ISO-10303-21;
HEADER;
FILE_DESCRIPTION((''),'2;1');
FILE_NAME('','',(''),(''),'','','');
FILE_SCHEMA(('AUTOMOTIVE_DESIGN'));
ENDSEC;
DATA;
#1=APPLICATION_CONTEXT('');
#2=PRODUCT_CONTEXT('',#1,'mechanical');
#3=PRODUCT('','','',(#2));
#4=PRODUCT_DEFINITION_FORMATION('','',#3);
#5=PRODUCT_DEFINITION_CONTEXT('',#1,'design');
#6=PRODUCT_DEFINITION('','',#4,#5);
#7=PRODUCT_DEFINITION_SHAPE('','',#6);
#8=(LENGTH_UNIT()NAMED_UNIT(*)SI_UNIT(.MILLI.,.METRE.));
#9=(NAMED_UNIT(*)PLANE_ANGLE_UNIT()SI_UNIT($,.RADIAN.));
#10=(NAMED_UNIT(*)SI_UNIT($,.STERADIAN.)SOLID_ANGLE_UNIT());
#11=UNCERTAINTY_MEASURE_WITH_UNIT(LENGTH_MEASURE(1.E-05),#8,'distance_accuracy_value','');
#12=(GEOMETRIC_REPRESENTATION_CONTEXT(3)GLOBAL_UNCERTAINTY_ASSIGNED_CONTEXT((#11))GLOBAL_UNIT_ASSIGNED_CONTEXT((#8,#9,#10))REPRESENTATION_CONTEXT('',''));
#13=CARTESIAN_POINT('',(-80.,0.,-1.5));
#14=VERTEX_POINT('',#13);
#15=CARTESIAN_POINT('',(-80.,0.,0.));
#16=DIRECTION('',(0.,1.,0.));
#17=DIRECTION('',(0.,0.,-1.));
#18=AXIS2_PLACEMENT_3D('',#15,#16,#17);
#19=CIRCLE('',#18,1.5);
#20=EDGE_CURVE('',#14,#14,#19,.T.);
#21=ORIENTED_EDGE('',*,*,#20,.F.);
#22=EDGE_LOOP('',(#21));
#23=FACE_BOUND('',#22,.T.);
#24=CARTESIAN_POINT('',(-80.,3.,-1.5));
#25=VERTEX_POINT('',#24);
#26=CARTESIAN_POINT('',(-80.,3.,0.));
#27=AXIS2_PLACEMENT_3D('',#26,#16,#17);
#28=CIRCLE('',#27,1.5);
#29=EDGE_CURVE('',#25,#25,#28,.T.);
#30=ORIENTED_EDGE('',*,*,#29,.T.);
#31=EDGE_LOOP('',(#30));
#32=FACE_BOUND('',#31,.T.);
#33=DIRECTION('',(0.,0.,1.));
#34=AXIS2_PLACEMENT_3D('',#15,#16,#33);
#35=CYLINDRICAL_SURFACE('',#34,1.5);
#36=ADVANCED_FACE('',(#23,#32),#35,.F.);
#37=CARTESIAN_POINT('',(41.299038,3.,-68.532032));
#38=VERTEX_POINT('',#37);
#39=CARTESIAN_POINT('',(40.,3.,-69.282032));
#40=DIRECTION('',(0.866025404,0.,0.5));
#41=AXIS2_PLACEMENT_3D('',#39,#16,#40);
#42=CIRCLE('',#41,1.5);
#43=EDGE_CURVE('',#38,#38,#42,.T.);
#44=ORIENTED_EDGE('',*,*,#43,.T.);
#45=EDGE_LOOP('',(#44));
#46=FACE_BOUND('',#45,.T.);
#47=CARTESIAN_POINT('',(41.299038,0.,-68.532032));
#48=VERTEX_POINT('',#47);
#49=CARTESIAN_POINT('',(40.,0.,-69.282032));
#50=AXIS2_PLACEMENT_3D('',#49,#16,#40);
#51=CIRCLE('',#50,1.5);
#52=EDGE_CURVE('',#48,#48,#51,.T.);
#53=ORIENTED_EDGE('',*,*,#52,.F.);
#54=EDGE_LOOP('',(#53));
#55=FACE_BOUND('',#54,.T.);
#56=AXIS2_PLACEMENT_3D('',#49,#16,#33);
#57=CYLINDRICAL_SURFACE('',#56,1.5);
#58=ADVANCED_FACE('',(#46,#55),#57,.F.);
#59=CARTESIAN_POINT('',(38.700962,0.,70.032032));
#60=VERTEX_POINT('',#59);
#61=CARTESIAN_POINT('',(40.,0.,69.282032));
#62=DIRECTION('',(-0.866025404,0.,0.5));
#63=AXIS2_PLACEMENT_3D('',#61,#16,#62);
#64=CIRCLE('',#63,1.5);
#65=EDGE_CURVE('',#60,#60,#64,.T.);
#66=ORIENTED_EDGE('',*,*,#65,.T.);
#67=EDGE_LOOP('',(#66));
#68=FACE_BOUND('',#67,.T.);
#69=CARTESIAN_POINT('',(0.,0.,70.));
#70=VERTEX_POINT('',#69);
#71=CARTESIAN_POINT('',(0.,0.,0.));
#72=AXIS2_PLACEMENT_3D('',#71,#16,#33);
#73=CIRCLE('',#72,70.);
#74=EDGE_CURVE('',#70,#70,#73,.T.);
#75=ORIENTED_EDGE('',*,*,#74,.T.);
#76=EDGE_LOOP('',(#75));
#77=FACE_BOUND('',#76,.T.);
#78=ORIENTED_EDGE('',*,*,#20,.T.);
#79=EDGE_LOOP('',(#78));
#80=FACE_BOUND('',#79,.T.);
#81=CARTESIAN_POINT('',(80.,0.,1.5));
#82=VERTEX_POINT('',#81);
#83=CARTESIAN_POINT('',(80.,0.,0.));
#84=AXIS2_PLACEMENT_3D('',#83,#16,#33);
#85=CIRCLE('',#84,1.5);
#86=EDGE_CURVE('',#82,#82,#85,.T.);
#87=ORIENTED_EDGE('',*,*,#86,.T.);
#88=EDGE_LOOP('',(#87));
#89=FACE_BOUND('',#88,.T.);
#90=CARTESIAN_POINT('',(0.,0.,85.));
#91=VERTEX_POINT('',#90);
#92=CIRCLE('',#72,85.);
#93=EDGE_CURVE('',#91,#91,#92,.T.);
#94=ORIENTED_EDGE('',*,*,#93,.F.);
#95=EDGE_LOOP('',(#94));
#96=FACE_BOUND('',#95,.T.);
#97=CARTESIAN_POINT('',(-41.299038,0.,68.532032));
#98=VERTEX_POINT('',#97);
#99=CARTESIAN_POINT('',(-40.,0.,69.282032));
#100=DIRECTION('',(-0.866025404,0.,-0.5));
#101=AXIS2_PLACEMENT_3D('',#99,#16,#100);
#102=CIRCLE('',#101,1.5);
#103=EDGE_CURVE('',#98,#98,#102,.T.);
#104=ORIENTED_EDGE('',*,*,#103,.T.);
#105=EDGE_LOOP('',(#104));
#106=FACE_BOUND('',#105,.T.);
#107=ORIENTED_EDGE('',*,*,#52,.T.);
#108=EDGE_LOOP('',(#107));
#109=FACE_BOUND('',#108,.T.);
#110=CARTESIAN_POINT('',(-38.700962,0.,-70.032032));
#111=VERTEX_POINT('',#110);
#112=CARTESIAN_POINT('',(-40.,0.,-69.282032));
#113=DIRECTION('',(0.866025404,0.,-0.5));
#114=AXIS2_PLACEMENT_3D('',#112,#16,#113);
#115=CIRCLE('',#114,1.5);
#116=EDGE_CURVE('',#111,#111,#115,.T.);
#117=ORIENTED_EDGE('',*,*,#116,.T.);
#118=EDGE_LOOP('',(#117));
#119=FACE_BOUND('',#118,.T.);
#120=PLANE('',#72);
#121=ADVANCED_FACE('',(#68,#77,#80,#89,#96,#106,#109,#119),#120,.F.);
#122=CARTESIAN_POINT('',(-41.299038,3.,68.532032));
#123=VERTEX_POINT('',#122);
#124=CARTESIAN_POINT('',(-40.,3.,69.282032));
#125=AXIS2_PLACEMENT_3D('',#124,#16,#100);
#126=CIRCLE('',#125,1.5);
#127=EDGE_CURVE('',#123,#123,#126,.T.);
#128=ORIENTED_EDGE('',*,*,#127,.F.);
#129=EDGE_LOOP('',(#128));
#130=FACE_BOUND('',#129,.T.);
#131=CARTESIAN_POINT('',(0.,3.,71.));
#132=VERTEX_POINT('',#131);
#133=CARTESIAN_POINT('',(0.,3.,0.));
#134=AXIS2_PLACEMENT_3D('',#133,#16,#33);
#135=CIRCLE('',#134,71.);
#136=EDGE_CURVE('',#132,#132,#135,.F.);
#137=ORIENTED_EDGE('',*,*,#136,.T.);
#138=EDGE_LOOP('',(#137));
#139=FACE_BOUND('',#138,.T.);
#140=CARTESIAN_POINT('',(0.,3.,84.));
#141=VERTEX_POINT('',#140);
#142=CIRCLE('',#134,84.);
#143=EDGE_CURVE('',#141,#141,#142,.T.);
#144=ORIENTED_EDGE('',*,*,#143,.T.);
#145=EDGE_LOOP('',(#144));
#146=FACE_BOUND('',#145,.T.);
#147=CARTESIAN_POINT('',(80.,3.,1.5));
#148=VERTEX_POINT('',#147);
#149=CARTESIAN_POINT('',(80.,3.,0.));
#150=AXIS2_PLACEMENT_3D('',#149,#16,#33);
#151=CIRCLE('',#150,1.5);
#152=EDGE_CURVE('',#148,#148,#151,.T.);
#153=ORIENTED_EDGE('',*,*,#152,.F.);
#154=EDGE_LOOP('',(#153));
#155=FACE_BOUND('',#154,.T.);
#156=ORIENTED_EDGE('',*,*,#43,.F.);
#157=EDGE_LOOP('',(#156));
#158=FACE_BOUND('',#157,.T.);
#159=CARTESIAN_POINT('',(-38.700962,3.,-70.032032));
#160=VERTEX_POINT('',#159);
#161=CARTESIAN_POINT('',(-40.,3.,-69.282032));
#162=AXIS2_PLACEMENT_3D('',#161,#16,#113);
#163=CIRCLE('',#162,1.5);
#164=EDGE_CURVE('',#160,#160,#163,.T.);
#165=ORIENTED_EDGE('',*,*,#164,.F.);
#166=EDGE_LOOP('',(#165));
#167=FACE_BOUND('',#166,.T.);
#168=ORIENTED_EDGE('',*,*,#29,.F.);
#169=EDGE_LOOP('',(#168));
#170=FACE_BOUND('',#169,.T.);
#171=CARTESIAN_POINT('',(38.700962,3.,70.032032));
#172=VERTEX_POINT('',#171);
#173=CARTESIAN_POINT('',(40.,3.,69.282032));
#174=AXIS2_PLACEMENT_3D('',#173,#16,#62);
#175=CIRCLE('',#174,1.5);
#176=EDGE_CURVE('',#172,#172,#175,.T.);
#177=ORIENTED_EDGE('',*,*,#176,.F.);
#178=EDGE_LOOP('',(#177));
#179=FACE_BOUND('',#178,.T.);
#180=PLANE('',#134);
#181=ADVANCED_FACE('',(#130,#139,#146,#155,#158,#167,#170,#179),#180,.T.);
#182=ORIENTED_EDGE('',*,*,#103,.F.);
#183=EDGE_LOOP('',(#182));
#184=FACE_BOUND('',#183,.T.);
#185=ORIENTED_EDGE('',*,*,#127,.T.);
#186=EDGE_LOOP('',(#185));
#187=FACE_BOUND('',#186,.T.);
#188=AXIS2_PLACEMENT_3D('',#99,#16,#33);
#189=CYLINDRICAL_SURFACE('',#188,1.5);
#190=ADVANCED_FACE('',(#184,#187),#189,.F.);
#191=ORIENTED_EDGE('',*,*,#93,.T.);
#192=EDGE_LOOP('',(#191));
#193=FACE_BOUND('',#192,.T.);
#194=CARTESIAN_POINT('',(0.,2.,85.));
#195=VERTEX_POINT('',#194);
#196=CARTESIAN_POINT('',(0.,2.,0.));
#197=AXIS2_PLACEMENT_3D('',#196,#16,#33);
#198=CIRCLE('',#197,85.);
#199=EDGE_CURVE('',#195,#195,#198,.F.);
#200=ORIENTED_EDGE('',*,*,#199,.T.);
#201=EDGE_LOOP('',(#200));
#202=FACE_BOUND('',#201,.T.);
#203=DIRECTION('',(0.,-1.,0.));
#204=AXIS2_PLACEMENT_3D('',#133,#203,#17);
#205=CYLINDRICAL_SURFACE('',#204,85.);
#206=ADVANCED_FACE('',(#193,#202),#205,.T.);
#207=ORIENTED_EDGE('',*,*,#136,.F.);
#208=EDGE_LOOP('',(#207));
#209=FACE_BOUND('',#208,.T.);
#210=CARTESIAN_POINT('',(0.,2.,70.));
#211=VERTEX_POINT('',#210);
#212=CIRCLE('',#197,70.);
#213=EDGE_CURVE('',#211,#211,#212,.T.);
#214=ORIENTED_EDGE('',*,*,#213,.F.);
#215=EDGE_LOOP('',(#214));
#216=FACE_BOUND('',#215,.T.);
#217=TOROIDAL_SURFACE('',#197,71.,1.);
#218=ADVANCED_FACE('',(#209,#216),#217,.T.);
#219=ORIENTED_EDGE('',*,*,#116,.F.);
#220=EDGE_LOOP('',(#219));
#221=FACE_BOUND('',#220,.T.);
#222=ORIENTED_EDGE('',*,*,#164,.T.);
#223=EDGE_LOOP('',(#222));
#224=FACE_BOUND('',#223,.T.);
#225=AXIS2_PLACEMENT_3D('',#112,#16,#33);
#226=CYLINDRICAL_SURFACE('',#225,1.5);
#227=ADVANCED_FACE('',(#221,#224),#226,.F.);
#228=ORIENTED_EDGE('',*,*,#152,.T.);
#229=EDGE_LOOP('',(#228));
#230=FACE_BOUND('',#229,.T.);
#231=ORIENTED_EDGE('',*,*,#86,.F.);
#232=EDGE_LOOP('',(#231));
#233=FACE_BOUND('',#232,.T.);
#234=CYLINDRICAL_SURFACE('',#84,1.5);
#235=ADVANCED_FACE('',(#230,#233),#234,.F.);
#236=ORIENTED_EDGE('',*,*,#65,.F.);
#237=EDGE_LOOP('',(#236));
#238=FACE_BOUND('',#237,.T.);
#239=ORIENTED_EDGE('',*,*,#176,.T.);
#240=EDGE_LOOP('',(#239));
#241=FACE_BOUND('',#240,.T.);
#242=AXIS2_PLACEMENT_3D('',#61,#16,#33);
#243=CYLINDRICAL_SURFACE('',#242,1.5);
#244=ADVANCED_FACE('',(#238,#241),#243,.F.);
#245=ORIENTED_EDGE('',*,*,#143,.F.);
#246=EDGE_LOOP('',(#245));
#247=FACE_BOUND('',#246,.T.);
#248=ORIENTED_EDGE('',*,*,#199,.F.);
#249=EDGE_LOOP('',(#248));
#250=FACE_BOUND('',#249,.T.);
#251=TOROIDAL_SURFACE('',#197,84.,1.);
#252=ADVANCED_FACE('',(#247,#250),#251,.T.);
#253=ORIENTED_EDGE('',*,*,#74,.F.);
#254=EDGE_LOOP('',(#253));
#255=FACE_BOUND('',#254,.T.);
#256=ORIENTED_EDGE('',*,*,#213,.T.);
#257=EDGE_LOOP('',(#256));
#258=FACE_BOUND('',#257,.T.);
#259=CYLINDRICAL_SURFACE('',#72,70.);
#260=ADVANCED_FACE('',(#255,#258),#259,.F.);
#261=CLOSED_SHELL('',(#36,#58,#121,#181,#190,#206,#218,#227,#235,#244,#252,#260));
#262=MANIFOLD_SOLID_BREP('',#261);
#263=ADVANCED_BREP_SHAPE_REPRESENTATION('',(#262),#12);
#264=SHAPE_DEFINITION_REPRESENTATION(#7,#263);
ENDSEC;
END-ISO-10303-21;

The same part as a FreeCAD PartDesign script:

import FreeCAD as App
import Part
import Sketcher


def edges_at(feature, points):
    """Names of the edges that pass closest to the given points."""
    edges = feature.Shape.Edges
    near = lambda p: min(range(len(edges)), key=lambda i: edges[i].distToShape(Part.Vertex(*p))[0])
    return sorted({f"Edge{near(p) + 1}" for p in points})

doc = App.newDocument("Part")
params = doc.addObject("Spreadsheet::Sheet", "Params")
for row, (alias, value) in enumerate([
    ("sketch1_diameter", "170 mm"),
    ("pad1_length", "3 mm"),
    ("sketch2_diameter", "140 mm"),
    ("pocket1_length", "3 mm"),
    ("sketch3_diameter", "3 mm"),
    ("pocket2_length", "3 mm"),
    ("fillet_radius", "1 mm"),
], start=1):
    params.set(f"A{row}", alias)
    params.set(f"B{row}", "=" + value)
    params.setAlias(f"B{row}", alias)

body = doc.addObject("PartDesign::Body", "Body")

sketch1 = body.newObject("Sketcher::SketchObject", "Sketch")
sketch1.AttachmentSupport = (doc.getObject("XZ_Plane"), [""])
sketch1.MapMode = "FlatFace"
sketch1.addGeometry(Part.Circle(App.Vector(0, 0, 0), App.Vector(0, 0, 1), 85), False)
sketch1.addConstraint([
    Sketcher.Constraint("Coincident", 0, 3, -1, 1),
    Sketcher.Constraint("Diameter", 0, 170.0),
])
sketch1.setExpression("Constraints[1]", "Params.sketch1_diameter")
pad1 = body.newObject("PartDesign::Pad", "Pad")
pad1.Profile = sketch1
pad1.setExpression("Length", "Params.pad1_length")
pad1.Reversed = True

sketch2 = body.newObject("Sketcher::SketchObject", "Sketch001")
sketch2.AttachmentSupport = (doc.getObject("XZ_Plane"), [""])
sketch2.MapMode = "FlatFace"
sketch2.AttachmentOffset = App.Placement(App.Vector(0, 0, -3), App.Rotation())
sketch2.addGeometry(Part.Circle(App.Vector(0, 0, 0), App.Vector(0, 0, 1), 70), False)
sketch2.addConstraint([
    Sketcher.Constraint("Coincident", 0, 3, -1, 1),
    Sketcher.Constraint("Diameter", 0, 140.0),
])
sketch2.setExpression("Constraints[1]", "Params.sketch2_diameter")
pocket1 = body.newObject("PartDesign::Pocket", "Pocket")
pocket1.Profile = sketch2
pocket1.setExpression("Length", "Params.pocket1_length")
pocket1.Reversed = True

sketch3 = body.newObject("Sketcher::SketchObject", "Sketch002")
sketch3.AttachmentSupport = (doc.getObject("XZ_Plane"), [""])
sketch3.MapMode = "FlatFace"
sketch3.AttachmentOffset = App.Placement(App.Vector(0, 0, -3), App.Rotation())
sketch3.addGeometry(Part.Circle(App.Vector(80, 0, 0), App.Vector(0, 0, 1), 1.5), False)
sketch3.addConstraint([
    Sketcher.Constraint("PointOnObject", 0, 3, -1),
    Sketcher.Constraint("Diameter", 0, 3.0),
    Sketcher.Constraint("DistanceX", -1, 1, 0, 3, 80.0),
])
sketch3.setExpression("Constraints[1]", "Params.sketch3_diameter")
pocket2 = body.newObject("PartDesign::Pocket", "Pocket001")
pocket2.Profile = sketch3
pocket2.setExpression("Length", "Params.pocket2_length")
pocket2.Reversed = True
doc.recompute()

polarpattern = body.newObject("PartDesign::PolarPattern", "PolarPattern")
polarpattern.Originals = [pocket2]
polarpattern.Axis = (doc.getObject("Y_Axis"), [""])
polarpattern.Angle = 360
polarpattern.Occurrences = 6
body.Tip = polarpattern
doc.recompute()

fillet = body.newObject("PartDesign::Fillet", "Fillet")
fillet.Base = (polarpattern, edges_at(polarpattern, [(0, 3, -85), (0, 3, -70)]))
fillet.setExpression("Radius", "Params.fillet_radius")

doc.recompute()
